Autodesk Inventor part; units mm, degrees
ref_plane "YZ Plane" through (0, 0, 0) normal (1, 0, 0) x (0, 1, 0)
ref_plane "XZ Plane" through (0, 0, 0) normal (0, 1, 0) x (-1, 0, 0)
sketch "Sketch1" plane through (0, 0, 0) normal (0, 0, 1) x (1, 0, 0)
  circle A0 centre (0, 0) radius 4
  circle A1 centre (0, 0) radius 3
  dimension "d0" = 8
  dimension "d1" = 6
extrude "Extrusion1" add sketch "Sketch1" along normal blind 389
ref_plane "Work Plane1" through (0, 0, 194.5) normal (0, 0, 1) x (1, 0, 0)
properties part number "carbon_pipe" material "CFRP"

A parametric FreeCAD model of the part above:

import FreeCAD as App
import Part
import Sketcher
from FreeCAD import Vector

doc = App.newDocument("Part")
body = doc.addObject("PartDesign::Body", "Body")

# Sketch on XY plane
sketch1 = body.newObject("Sketcher::SketchObject", "Sketch")
sketch1.AttachmentSupport = (doc.getObject("XY_Plane"), [""])
sketch1.MapMode = "FlatFace"
sketch1.addGeometry([
    Part.Circle(Vector(0, 0, 0), Vector(0, 0, 1), 4),
    Part.Circle(Vector(0, 0, 0), Vector(0, 0, 1), 3),
], False)
sketch1.addConstraint([
    Sketcher.Constraint("Coincident", 0, 3, -1, 1),
    Sketcher.Constraint("Coincident", 1, 3, -1, 1),
    Sketcher.Constraint("Diameter", 0, 8.0),
    Sketcher.Constraint("Diameter", 1, 6.0),
])
pad1 = body.newObject("PartDesign::Pad", "Pad")
pad1.Profile = sketch1
pad1.Length = 389

doc.recompute()
